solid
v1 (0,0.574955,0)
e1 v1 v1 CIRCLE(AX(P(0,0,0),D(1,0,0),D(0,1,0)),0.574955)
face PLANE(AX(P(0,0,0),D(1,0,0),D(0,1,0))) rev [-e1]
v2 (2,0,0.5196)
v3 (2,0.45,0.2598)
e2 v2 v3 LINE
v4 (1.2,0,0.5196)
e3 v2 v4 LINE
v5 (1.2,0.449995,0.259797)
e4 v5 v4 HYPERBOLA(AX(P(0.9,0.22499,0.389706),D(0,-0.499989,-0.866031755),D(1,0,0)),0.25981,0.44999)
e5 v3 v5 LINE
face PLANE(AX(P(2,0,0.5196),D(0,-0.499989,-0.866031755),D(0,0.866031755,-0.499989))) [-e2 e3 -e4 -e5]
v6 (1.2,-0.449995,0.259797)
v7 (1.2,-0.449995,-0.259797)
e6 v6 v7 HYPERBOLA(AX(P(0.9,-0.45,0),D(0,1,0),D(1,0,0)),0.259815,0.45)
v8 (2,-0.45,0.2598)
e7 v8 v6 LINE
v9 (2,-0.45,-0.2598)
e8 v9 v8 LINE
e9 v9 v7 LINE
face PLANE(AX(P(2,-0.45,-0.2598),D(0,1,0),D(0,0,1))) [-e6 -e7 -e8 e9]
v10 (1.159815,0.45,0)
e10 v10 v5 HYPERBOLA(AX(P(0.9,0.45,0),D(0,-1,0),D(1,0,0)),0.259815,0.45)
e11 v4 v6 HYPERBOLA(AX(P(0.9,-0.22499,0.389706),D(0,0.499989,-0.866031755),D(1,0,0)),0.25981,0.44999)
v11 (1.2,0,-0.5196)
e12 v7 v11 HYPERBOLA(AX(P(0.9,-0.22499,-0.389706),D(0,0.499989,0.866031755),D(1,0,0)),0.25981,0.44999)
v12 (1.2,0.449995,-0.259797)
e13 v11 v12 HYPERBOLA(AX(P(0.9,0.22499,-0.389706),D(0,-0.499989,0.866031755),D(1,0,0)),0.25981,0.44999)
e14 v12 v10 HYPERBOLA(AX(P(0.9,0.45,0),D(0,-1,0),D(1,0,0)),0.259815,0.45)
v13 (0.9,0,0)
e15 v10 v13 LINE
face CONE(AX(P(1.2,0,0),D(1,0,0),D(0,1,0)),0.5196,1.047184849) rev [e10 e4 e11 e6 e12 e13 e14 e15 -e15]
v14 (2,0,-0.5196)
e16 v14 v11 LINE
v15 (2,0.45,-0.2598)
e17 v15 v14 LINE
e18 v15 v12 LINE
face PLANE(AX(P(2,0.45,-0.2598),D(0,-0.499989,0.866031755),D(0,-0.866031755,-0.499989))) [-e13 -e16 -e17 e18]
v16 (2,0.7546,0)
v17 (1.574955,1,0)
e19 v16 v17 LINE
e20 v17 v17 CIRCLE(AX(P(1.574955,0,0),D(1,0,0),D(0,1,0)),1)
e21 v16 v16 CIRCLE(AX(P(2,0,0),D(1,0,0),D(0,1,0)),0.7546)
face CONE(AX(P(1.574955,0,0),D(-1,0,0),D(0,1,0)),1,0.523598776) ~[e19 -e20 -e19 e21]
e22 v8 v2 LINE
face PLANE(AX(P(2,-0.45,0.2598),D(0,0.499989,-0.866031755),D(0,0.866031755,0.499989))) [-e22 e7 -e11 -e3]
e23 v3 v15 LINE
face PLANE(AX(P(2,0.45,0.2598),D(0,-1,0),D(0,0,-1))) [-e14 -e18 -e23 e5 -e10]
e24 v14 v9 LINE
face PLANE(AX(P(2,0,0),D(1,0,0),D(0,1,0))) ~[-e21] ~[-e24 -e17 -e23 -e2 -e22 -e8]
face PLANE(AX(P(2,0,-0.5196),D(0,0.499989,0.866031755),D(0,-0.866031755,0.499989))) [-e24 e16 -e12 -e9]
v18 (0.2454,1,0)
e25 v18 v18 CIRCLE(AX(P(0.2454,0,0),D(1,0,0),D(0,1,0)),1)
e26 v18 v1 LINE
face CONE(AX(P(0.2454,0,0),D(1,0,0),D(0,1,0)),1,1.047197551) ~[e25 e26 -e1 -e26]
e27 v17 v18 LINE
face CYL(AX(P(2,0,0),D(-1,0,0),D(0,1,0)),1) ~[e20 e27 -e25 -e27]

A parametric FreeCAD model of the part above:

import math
import FreeCAD as App
import Part
import Sketcher
from FreeCAD import Vector
Q = App.Units.Quantity


def edges_at(feature, points):
    """Names of the edges that pass closest to the given points."""
    edges = feature.Shape.Edges
    near = lambda p: min(range(len(edges)), key=lambda i: edges[i].distToShape(Part.Vertex(*p))[0])
    return sorted({f"Edge{near(p) + 1}" for p in points})


def add_polygon(sketch, points):
    """Adds a closed chain of lines whose ends are joined by coincident constraints."""
    first, n = sketch.GeometryCount, len(points)
    for a, b in zip(points, points[1:] + points[:1]):
        sketch.addGeometry(Part.LineSegment(App.Vector(*a, 0), App.Vector(*b, 0)), False)
    for i in range(n):
        sketch.addConstraint(Sketcher.Constraint("Coincident", first + i, 2, first + (i + 1) % n, 1))

doc = App.newDocument("Part")
body = doc.addObject("PartDesign::Body", "Body")

sketch1 = doc.addObject("Sketcher::SketchObject", "Sketch")
body.addObject(sketch1)
sketch1.AttachmentSupport = (doc.XY_Plane, [""])
sketch1.MapMode = "FlatFace"
add_polygon(sketch1, [(0, 1), (0, 0), (0.9, 0), (1.2, 0.5196), (2, 0.5196), (2, 1)])
sketch1.addConstraint([
    Sketcher.Constraint("Vertical", 0),
    Sketcher.Constraint("Horizontal", 1),
    Sketcher.Constraint("Horizontal", 3),
    Sketcher.Constraint("Vertical", 4),
    Sketcher.Constraint("Horizontal", 5),
    Sketcher.Constraint("Coincident", 0, 2, -1, 1),
    Sketcher.Constraint("DistanceX", 5, 2, 5, 1, Q("2 mm")),
    Sketcher.Constraint("DistanceX", 3, 1, 3, 2, Q("0.8 mm")),
    Sketcher.Constraint("DistanceY", 0, 2, 0, 1, Q("1 mm")),
    Sketcher.Constraint("Angle", 2, Q("59.9993 deg")),
    Sketcher.Constraint("DistanceX", 1, 1, 1, 2, Q("0.9 mm")),
])
revolution = doc.addObject("PartDesign::Revolution", "Revolution")
body.addObject(revolution)
revolution.Profile = sketch1
revolution.ReferenceAxis = (sketch1, ["H_Axis"])
revolution.Angle = 360
doc.recompute()

chamfer = doc.addObject("PartDesign::Chamfer", "Chamfer")
body.addObject(chamfer)
chamfer.Base = (revolution, edges_at(revolution, [(2, -1, 0)]))
chamfer.ChamferType = "Distance and Angle"
chamfer.Size = 0.2454
chamfer.Angle = 60

sketch2 = doc.addObject("Sketcher::SketchObject", "Sketch001")
body.addObject(sketch2)
sketch2.AttachmentSupport = (doc.YZ_Plane, [""])
sketch2.MapMode = "FlatFace"
sketch2.AttachmentOffset = App.Placement(Vector(0, 0, 2), App.Rotation())
sketch2.addGeometry([
    Part.LineSegment(Vector(0.45, -0.2598, 0), Vector(0, -0.5196, 0)),
    Part.ArcOfCircle(Part.Circle(Vector(0, 0, 0), Vector(0, 0, 1), 0.5196), math.radians(-90), math.radians(-29.999272)),
    Part.ArcOfCircle(Part.Circle(Vector(0, 0, 0), Vector(0, 0, 1), 0.5196), math.radians(-150.000728), math.radians(-90)),
    Part.LineSegment(Vector(0, -0.5196, 0), Vector(-0.45, -0.2598, 0)),
    Part.LineSegment(Vector(0.45, 0.2598, 0), Vector(0.45, -0.2598, 0)),
    Part.ArcOfCircle(Part.Circle(Vector(0, 0, 0), Vector(0, 0, 1), 0.5196), math.radians(-29.999272), math.radians(29.999272)),
    Part.ArcOfCircle(Part.Circle(Vector(0, 0, 0), Vector(0, 0, 1), 0.5196), math.radians(150.000728), math.radians(209.999272)),
    Part.LineSegment(Vector(-0.45, 0.2598, 0), Vector(-0.45, -0.2598, 0)),
    Part.LineSegment(Vector(0, 0.5196, 0), Vector(0.45, 0.2598, 0)),
    Part.ArcOfCircle(Part.Circle(Vector(0, 0, 0), Vector(0, 0, 1), 0.5196), math.radians(29.999272), math.radians(90)),
    Part.ArcOfCircle(Part.Circle(Vector(0, 0, 0), Vector(0, 0, 1), 0.5196), math.radians(90), math.radians(150.000728)),
    Part.LineSegment(Vector(0, 0.5196, 0), Vector(-0.45, 0.2598, 0)),
], False)
sketch2.addConstraint([
    Sketcher.Constraint("Coincident", 0, 1, 1, 2),
    Sketcher.Constraint("Coincident", 1, 1, 0, 2),
    Sketcher.Constraint("Coincident", 2, 1, 3, 2),
    Sketcher.Constraint("Coincident", 3, 1, 2, 2),
    Sketcher.Constraint("Coincident", 4, 1, 5, 2),
    Sketcher.Constraint("Coincident", 5, 1, 4, 2),
    Sketcher.Constraint("Coincident", 6, 1, 7, 1),
    Sketcher.Constraint("Coincident", 7, 2, 6, 2),
    Sketcher.Constraint("Coincident", 8, 1, 9, 2),
    Sketcher.Constraint("Coincident", 9, 1, 8, 2),
    Sketcher.Constraint("Coincident", 10, 1, 11, 1),
    Sketcher.Constraint("Coincident", 11, 2, 10, 2),
    Sketcher.Constraint("Vertical", 4),
    Sketcher.Constraint("Vertical", 7),
    Sketcher.Constraint("Coincident", 1, 3, -1, 1),
    Sketcher.Constraint("Coincident", 2, 3, -1, 1),
    Sketcher.Constraint("Coincident", 5, 3, -1, 1),
    Sketcher.Constraint("Coincident", 6, 3, -1, 1),
    Sketcher.Constraint("Coincident", 9, 3, -1, 1),
    Sketcher.Constraint("Coincident", 10, 3, -1, 1),
    Sketcher.Constraint("Coincident", 3, 1, 1, 1),
    Sketcher.Constraint("Coincident", 5, 1, 0, 1),
    Sketcher.Constraint("Coincident", 7, 2, 2, 1),
    Sketcher.Constraint("Coincident", 9, 1, 4, 1),
    Sketcher.Constraint("Coincident", 10, 1, 8, 1),
    Sketcher.Constraint("PointOnObject", 1, 1, -2),
    Sketcher.Constraint("PointOnObject", 8, 1, -2),
    Sketcher.Constraint("Parallel", 3, 8),
    Sketcher.Constraint("Parallel", 0, 11),
    Sketcher.Constraint("Angle", 0, Q("-150.0007 deg")),
    Sketcher.Constraint("Radius", 1, Q("0.5196 mm")),
])
pad1 = doc.addObject("PartDesign::Pad", "Pad")
body.addObject(pad1)
pad1.Profile = sketch2
pad1.Type = "UpToFirst"
pad1.Reversed = True
doc.recompute()

chamfer2 = doc.addObject("PartDesign::Chamfer", "Chamfer001")
body.addObject(chamfer2)
chamfer2.Base = (pad1, edges_at(pad1, [(0, -1, 0)]))
chamfer2.ChamferType = "Distance and Angle"
chamfer2.Size = 0.2454
chamfer2.Angle = 60

doc.recompute()
